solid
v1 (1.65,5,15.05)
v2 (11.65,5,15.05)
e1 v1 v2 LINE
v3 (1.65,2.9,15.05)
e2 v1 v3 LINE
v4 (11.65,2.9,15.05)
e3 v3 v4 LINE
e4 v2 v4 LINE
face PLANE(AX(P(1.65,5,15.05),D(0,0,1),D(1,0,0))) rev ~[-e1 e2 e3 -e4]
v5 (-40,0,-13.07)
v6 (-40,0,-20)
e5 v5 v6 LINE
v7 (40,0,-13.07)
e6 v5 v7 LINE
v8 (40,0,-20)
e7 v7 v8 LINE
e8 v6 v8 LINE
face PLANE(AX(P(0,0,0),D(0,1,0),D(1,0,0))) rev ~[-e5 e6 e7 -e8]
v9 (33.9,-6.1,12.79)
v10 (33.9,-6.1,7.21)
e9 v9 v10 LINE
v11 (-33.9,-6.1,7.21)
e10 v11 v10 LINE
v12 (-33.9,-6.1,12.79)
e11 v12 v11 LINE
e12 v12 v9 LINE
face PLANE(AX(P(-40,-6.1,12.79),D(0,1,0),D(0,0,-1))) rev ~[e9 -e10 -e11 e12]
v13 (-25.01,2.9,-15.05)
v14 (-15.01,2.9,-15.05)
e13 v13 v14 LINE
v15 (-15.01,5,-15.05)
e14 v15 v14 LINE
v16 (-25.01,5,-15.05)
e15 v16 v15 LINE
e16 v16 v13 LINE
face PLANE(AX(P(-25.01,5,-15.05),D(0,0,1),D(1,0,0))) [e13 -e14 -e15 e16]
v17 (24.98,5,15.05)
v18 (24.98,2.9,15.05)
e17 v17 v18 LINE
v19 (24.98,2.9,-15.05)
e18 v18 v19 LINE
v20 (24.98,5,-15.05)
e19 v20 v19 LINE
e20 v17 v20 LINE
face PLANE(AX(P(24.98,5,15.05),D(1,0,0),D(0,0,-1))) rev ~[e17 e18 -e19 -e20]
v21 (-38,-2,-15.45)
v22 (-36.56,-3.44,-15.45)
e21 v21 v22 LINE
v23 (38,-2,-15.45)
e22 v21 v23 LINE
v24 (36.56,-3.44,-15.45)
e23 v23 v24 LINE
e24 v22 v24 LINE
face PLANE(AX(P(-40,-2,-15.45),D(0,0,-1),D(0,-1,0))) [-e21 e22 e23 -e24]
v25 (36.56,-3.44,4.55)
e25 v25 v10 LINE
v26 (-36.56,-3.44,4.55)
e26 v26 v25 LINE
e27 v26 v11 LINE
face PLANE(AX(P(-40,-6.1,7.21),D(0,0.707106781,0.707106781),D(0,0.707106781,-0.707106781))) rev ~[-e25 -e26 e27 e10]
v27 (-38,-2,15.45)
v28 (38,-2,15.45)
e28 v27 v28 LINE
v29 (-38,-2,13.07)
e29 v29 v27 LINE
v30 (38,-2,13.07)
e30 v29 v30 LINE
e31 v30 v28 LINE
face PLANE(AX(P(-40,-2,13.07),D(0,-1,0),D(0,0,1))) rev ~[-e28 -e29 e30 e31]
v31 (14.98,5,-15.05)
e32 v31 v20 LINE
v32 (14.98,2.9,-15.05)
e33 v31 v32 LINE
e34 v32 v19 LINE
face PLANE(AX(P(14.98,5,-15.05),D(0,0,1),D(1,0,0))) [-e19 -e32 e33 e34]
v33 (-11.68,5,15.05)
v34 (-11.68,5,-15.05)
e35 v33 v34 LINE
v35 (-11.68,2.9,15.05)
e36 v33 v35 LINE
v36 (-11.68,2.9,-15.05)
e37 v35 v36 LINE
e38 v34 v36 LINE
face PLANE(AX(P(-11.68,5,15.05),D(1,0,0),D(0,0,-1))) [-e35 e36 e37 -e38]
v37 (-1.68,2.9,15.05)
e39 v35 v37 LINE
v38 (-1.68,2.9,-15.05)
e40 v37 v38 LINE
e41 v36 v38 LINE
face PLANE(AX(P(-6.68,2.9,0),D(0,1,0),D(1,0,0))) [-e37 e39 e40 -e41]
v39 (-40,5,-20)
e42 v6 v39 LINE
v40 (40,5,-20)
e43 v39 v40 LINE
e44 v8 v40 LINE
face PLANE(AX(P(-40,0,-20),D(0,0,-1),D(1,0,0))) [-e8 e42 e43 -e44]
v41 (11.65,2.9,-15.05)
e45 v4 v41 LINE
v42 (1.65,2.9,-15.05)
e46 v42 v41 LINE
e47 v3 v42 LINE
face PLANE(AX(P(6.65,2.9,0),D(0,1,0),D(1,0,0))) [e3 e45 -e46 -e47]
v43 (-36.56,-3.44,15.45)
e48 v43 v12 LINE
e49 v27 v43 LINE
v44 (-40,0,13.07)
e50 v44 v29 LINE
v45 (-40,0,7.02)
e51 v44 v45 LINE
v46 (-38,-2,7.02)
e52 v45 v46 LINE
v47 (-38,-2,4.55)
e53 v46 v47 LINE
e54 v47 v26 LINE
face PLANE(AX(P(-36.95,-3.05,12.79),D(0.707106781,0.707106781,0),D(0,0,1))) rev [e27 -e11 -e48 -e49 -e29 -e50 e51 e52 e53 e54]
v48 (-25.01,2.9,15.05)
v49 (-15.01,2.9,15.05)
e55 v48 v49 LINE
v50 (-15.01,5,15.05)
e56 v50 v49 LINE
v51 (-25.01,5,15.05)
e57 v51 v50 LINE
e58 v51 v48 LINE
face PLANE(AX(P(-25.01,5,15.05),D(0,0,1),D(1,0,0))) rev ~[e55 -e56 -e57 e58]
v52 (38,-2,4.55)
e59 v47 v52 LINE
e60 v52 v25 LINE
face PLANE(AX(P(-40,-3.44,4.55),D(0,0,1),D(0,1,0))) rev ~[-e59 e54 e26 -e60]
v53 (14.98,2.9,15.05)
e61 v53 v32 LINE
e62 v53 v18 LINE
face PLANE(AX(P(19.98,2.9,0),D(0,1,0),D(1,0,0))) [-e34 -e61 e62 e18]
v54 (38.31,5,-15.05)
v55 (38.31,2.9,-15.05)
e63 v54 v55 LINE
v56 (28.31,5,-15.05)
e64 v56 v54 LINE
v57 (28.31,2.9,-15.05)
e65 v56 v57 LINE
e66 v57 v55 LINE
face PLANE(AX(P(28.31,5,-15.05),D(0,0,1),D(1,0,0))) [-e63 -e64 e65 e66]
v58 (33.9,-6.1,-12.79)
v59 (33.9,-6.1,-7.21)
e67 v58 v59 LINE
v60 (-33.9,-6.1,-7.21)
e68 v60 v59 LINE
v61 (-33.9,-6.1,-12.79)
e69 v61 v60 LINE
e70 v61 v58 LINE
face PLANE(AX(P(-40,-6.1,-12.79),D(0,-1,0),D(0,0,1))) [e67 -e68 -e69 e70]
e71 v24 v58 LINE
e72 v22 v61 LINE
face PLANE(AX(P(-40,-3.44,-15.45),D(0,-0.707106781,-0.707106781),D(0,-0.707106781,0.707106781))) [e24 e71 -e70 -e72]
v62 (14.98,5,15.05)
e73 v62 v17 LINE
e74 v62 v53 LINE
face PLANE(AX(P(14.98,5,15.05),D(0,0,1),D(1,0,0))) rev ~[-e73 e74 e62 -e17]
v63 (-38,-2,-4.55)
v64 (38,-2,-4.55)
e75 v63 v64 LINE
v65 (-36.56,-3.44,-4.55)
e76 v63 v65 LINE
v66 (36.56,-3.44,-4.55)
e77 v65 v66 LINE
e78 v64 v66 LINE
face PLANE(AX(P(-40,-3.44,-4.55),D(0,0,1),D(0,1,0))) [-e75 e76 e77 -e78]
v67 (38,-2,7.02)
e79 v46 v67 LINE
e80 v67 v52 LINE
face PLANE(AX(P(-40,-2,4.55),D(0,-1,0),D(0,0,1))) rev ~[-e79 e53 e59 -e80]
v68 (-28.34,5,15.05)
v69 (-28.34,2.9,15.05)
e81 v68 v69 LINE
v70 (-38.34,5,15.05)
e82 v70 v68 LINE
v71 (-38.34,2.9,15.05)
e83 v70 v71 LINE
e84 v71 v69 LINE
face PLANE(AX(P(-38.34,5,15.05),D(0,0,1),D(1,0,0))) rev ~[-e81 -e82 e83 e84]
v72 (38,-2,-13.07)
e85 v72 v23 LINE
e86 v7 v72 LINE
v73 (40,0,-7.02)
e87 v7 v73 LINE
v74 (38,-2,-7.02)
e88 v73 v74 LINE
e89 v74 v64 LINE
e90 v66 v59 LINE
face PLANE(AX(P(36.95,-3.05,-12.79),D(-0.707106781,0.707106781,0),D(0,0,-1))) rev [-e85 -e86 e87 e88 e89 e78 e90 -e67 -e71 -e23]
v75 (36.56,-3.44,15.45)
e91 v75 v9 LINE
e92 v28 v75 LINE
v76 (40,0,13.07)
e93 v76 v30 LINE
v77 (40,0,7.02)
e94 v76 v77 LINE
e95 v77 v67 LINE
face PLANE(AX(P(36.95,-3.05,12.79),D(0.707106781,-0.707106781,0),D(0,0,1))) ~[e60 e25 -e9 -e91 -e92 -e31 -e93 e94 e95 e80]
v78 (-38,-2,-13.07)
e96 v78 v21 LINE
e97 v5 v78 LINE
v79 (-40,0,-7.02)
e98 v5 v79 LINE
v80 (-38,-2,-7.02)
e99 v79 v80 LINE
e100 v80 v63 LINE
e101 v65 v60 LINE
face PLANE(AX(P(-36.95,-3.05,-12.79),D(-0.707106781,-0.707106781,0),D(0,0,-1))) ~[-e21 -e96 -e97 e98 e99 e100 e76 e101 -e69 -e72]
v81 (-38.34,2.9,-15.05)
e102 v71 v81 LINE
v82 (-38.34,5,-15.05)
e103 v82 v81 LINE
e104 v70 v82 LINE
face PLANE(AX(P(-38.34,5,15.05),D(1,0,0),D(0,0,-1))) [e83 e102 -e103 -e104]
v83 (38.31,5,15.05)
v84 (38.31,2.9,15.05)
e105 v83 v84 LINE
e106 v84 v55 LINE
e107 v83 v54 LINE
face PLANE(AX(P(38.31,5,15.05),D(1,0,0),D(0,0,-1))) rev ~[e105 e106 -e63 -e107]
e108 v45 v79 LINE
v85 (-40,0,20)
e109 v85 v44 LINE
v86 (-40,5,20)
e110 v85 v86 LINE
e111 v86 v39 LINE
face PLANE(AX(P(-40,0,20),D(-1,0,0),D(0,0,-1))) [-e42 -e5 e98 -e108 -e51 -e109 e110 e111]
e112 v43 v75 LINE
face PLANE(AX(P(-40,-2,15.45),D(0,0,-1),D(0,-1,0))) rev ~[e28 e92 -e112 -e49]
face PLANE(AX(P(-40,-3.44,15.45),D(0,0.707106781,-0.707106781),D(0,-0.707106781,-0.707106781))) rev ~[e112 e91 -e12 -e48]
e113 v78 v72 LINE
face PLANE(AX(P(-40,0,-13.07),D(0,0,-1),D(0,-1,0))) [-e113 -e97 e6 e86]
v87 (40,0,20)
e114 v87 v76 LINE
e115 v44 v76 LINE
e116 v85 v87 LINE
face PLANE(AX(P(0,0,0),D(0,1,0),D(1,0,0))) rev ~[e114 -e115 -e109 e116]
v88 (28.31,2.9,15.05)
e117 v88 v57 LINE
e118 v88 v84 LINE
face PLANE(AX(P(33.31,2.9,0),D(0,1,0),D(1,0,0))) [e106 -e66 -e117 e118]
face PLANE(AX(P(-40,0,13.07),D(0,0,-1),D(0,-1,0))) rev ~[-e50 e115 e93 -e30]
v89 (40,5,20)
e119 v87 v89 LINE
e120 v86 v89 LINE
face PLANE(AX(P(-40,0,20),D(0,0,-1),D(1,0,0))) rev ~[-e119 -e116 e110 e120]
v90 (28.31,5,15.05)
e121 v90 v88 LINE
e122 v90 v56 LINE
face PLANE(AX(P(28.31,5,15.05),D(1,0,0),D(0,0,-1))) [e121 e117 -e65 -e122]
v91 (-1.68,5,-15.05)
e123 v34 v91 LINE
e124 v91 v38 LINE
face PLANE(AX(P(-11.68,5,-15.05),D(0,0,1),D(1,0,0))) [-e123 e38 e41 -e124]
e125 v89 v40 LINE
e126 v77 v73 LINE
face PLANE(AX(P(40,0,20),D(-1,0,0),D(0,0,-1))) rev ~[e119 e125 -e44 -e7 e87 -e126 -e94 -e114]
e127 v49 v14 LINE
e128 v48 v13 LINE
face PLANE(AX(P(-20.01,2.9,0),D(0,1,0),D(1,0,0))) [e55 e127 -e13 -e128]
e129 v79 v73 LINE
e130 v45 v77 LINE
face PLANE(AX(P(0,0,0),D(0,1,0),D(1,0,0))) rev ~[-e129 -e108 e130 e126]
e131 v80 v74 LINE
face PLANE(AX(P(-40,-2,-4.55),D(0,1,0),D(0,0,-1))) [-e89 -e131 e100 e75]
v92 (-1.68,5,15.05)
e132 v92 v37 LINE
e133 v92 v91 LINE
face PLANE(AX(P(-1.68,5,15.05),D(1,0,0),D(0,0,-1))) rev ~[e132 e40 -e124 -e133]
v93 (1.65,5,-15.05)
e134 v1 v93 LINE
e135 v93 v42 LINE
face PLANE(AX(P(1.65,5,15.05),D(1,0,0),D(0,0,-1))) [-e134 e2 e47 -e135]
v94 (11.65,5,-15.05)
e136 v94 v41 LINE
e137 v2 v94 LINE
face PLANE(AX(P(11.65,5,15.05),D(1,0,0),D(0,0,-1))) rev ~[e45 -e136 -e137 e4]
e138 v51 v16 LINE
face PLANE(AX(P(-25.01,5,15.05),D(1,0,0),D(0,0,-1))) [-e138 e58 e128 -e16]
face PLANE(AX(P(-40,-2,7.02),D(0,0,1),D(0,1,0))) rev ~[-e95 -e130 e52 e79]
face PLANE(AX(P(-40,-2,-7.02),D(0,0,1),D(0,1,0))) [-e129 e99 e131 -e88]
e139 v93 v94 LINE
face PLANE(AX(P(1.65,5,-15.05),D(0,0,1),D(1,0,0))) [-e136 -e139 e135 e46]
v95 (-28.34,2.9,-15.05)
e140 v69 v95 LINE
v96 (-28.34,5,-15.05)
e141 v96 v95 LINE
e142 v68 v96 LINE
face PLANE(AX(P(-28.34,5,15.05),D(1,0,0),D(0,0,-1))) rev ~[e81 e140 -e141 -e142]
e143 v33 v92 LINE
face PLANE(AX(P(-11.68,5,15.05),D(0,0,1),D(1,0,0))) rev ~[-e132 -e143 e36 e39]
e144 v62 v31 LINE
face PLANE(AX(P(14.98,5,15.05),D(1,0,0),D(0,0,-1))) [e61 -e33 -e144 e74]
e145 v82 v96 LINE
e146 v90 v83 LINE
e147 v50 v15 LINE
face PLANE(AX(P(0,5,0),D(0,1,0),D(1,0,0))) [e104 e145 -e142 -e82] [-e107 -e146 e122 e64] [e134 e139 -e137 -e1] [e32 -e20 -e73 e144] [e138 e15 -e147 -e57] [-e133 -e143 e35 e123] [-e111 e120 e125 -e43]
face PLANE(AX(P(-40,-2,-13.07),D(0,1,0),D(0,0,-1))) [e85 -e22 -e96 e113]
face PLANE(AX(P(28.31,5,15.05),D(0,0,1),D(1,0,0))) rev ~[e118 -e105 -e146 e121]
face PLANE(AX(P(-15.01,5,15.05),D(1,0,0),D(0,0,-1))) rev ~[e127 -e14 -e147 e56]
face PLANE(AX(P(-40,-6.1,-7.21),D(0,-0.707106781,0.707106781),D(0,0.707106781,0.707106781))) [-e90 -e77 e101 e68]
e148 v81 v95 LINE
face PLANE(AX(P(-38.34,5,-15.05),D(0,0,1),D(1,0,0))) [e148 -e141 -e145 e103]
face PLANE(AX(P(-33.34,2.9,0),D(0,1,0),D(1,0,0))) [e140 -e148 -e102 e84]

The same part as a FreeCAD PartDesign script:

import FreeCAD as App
import Part
import Sketcher

V = App.Vector
Q = App.Units.Quantity


def edges_at(feature, points):
    """Names of the edges that pass closest to the given points."""
    edges = feature.Shape.Edges
    near = lambda p: min(range(len(edges)), key=lambda i: edges[i].distToShape(Part.Vertex(*p))[0])
    return sorted({f"Edge{near(p) + 1}" for p in points})

doc = App.newDocument("Part")
body = doc.addObject("PartDesign::Body", "Body")

# Sketch on XZ plane
sketch1 = doc.addObject("Sketcher::SketchObject", "Sketch")
body.addObject(sketch1)
sketch1.AttachmentSupport = (doc.XZ_Plane, [""])
sketch1.MapMode = "FlatFace"
sketch1.addGeometry(Part.LineSegment(V(-40, -20, 0), V(-40, 20, 0)), False)
sketch1.addGeometry(Part.LineSegment(V(-40, 20, 0), V(40, 20, 0)), False)
sketch1.addGeometry(Part.LineSegment(V(40, 20, 0), V(40, -20, 0)), False)
sketch1.addGeometry(Part.LineSegment(V(40, -20, 0), V(-40, -20, 0)), False)
sketch1.addConstraint(Sketcher.Constraint("Coincident", 0, 2, 1, 1))
sketch1.addConstraint(Sketcher.Constraint("Coincident", 1, 2, 2, 1))
sketch1.addConstraint(Sketcher.Constraint("Coincident", 2, 2, 3, 1))
sketch1.addConstraint(Sketcher.Constraint("Coincident", 3, 2, 0, 1))
sketch1.addConstraint(Sketcher.Constraint("Vertical", 0))
sketch1.addConstraint(Sketcher.Constraint("Horizontal", 1))
sketch1.addConstraint(Sketcher.Constraint("Vertical", 2))
sketch1.addConstraint(Sketcher.Constraint("Horizontal", 3))
sketch1.addConstraint(Sketcher.Constraint("Symmetric", 0, 2, 2, 2, -1, 1))
sketch1.addConstraint(Sketcher.Constraint("DistanceX", 1, 1, 1, 2, Q("80 mm")))
sketch1.addConstraint(Sketcher.Constraint("DistanceY", 0, 1, 0, 2, Q("40 mm")))
pad1 = doc.addObject("PartDesign::Pad", "Pad")
body.addObject(pad1)
pad1.Profile = sketch1
pad1.Length = 5
pad1.Reversed = True

# Sketch on XZ plane
sketch2 = doc.addObject("Sketcher::SketchObject", "Sketch001")
body.addObject(sketch2)
sketch2.AttachmentSupport = (doc.XZ_Plane, [""])
sketch2.MapMode = "FlatFace"
sketch2.AttachmentOffset = App.Placement(V(0, 0, -5), App.Rotation())
sketch2.addGeometry(Part.LineSegment(V(-38, -15, 0), V(-38, 15, 0)), False)
sketch2.addGeometry(Part.LineSegment(V(-38, 15, 0), V(-28, 15, 0)), False)
sketch2.addGeometry(Part.LineSegment(V(-28, 15, 0), V(-28, -15, 0)), False)
sketch2.addGeometry(Part.LineSegment(V(-28, -15, 0), V(-38, -15, 0)), False)
sketch2.addConstraint(Sketcher.Constraint("Coincident", 0, 2, 1, 1))
sketch2.addConstraint(Sketcher.Constraint("Coincident", 1, 2, 2, 1))
sketch2.addConstraint(Sketcher.Constraint("Coincident", 2, 2, 3, 1))
sketch2.addConstraint(Sketcher.Constraint("Coincident", 3, 2, 0, 1))
sketch2.addConstraint(Sketcher.Constraint("Vertical", 0))
sketch2.addConstraint(Sketcher.Constraint("Horizontal", 1))
sketch2.addConstraint(Sketcher.Constraint("Vertical", 2))
sketch2.addConstraint(Sketcher.Constraint("Horizontal", 3))
sketch2.addConstraint(Sketcher.Constraint("DistanceX", 1, 1, 1, 2, Q("10 mm")))
sketch2.addConstraint(Sketcher.Constraint("DistanceY", 0, 1, 0, 2, Q("30.1 mm")))
sketch2.addConstraint(Sketcher.Constraint("DistanceX", 0, 2, -1, 1, Q("38.34 mm")))
sketch2.addConstraint(Sketcher.Constraint("DistanceY", -1, 1, 0, 2, Q("15.05 mm")))
pocket1 = doc.addObject("PartDesign::Pocket", "Pocket")
body.addObject(pocket1)
pocket1.Profile = sketch2
pocket1.Length = 2.1
pocket1.Reversed = True
doc.recompute()

linearpattern = doc.addObject("PartDesign::LinearPattern", "LinearPattern")
body.addObject(linearpattern)
linearpattern.Originals = [pocket1]
linearpattern.Direction = (doc.X_Axis, [""])
linearpattern.Mode = "offset"
linearpattern.Offset = 13.33
linearpattern.Occurrences = 6
body.Tip = linearpattern

# Sketch on YZ plane
sketch3 = doc.addObject("Sketcher::SketchObject", "Sketch002")
body.addObject(sketch3)
sketch3.AttachmentSupport = (doc.YZ_Plane, [""])
sketch3.MapMode = "FlatFace"
sketch3.AttachmentOffset = App.Placement(V(0, 0, -40), App.Rotation())
sketch3.addGeometry(Part.LineSegment(V(0, -13.1, 0), V(-2, -13.1, 0)), False)
sketch3.addGeometry(Part.LineSegment(V(-2, -13.1, 0), V(-2, -15.4, 0)), False)
sketch3.addGeometry(Part.LineSegment(V(-2, -15.4, 0), V(-3.4, -15.4, 0)), False)
sketch3.addGeometry(Part.LineSegment(V(-3.4, -15.4, 0), V(-6.1, -12.8, 0)), False)
sketch3.addGeometry(Part.LineSegment(V(-6.1, -12.8, 0), V(-6.1, -7.2, 0)), False)
sketch3.addGeometry(Part.LineSegment(V(-6.1, -7.2, 0), V(-3.4, -4.5, 0)), False)
sketch3.addGeometry(Part.LineSegment(V(-3.4, -4.5, 0), V(-2, -4.5, 0)), False)
sketch3.addGeometry(Part.LineSegment(V(-2, -4.5, 0), V(-2, -7, 0)), False)
sketch3.addGeometry(Part.LineSegment(V(-2, -7, 0), V(0, -7, 0)), False)
sketch3.addGeometry(Part.LineSegment(V(0, -7, 0), V(0, -13.1, 0)), False)
sketch3.addGeometry(Part.LineSegment(V(0, 13.1, 0), V(0, 7, 0)), False)
sketch3.addGeometry(Part.LineSegment(V(0, 7, 0), V(-2, 7, 0)), False)
sketch3.addGeometry(Part.LineSegment(V(-2, 7, 0), V(-2, 4.5, 0)), False)
sketch3.addGeometry(Part.LineSegment(V(-2, 4.5, 0), V(-3.4, 4.5, 0)), False)
sketch3.addGeometry(Part.LineSegment(V(-3.4, 4.5, 0), V(-6.1, 7.2, 0)), False)
sketch3.addGeometry(Part.LineSegment(V(-6.1, 7.2, 0), V(-6.1, 12.8, 0)), False)
sketch3.addGeometry(Part.LineSegment(V(-6.1, 12.8, 0), V(-3.4, 15.4, 0)), False)
sketch3.addGeometry(Part.LineSegment(V(-3.4, 15.4, 0), V(-2, 15.4, 0)), False)
sketch3.addGeometry(Part.LineSegment(V(-2, 15.4, 0), V(-2, 13.1, 0)), False)
sketch3.addGeometry(Part.LineSegment(V(-2, 13.1, 0), V(0, 13.1, 0)), False)
sketch3.addConstraint(Sketcher.Constraint("Coincident", 0, 2, 1, 1))
sketch3.addConstraint(Sketcher.Constraint("Coincident", 1, 2, 2, 1))
sketch3.addConstraint(Sketcher.Constraint("Coincident", 2, 2, 3, 1))
sketch3.addConstraint(Sketcher.Constraint("Coincident", 3, 2, 4, 1))
sketch3.addConstraint(Sketcher.Constraint("Coincident", 4, 2, 5, 1))
sketch3.addConstraint(Sketcher.Constraint("Coincident", 5, 2, 6, 1))
sketch3.addConstraint(Sketcher.Constraint("Coincident", 6, 2, 7, 1))
sketch3.addConstraint(Sketcher.Constraint("Coincident", 7, 2, 8, 1))
sketch3.addConstraint(Sketcher.Constraint("Coincident", 8, 2, 9, 1))
sketch3.addConstraint(Sketcher.Constraint("Coincident", 9, 2, 0, 1))
sketch3.addConstraint(Sketcher.Constraint("Coincident", 10, 2, 11, 1))
sketch3.addConstraint(Sketcher.Constraint("Coincident", 11, 2, 12, 1))
sketch3.addConstraint(Sketcher.Constraint("Coincident", 12, 2, 13, 1))
sketch3.addConstraint(Sketcher.Constraint("Coincident", 13, 2, 14, 1))
sketch3.addConstraint(Sketcher.Constraint("Coincident", 14, 2, 15, 1))
sketch3.addConstraint(Sketcher.Constraint("Coincident", 15, 2, 16, 1))
sketch3.addConstraint(Sketcher.Constraint("Coincident", 16, 2, 17, 1))
sketch3.addConstraint(Sketcher.Constraint("Coincident", 17, 2, 18, 1))
sketch3.addConstraint(Sketcher.Constraint("Coincident", 18, 2, 19, 1))
sketch3.addConstraint(Sketcher.Constraint("Coincident", 19, 2, 10, 1))
sketch3.addConstraint(Sketcher.Constraint("Horizontal", 0))
sketch3.addConstraint(Sketcher.Constraint("Vertical", 1))
sketch3.addConstraint(Sketcher.Constraint("Horizontal", 2))
sketch3.addConstraint(Sketcher.Constraint("Vertical", 4))
sketch3.addConstraint(Sketcher.Constraint("Horizontal", 6))
sketch3.addConstraint(Sketcher.Constraint("Vertical", 7))
sketch3.addConstraint(Sketcher.Constraint("Horizontal", 8))
sketch3.addConstraint(Sketcher.Constraint("Vertical", 9))
sketch3.addConstraint(Sketcher.Constraint("Vertical", 10))
sketch3.addConstraint(Sketcher.Constraint("Horizontal", 11))
sketch3.addConstraint(Sketcher.Constraint("Vertical", 12))
sketch3.addConstraint(Sketcher.Constraint("Horizontal", 13))
sketch3.addConstraint(Sketcher.Constraint("Vertical", 15))
sketch3.addConstraint(Sketcher.Constraint("Horizontal", 17))
sketch3.addConstraint(Sketcher.Constraint("Vertical", 18))
sketch3.addConstraint(Sketcher.Constraint("Horizontal", 19))
sketch3.addConstraint(Sketcher.Constraint("Symmetric", 8, 2, 10, 2, -1, 1))
sketch3.addConstraint(Sketcher.Constraint("Symmetric", 6, 2, 12, 2, -1))
sketch3.addConstraint(Sketcher.Constraint("Symmetric", 4, 2, 14, 2, -1))
sketch3.addConstraint(Sketcher.Constraint("Symmetric", 2, 2, 16, 2, -1))
sketch3.addConstraint(Sketcher.Constraint("Symmetric", 0, 2, 18, 2, -1))
sketch3.addConstraint(Sketcher.Constraint("PointOnObject", 8, 2, -2))
sketch3.addConstraint(Sketcher.Constraint("Perpendicular", 3, 5))
sketch3.addConstraint(Sketcher.Constraint("Perpendicular", 5, 14))
sketch3.addConstraint(Sketcher.Constraint("Perpendicular", 14, 16))
sketch3.addConstraint(Sketcher.Constraint("Vertical", 2, 2, 5, 2))
sketch3.addConstraint(Sketcher.Constraint("Vertical", 1, 2, 6, 2))
sketch3.addConstraint(Sketcher.Constraint("Vertical", 5, 2, 13, 2))
sketch3.addConstraint(Sketcher.Constraint("DistanceX", 0, 2, 0, 1, Q("2 mm")))
sketch3.addConstraint(Sketcher.Constraint("DistanceX", 2, 2, 2, 1, Q("1.44 mm")))
sketch3.addConstraint(Sketcher.Constraint("DistanceY", 1, 2, 1, 1, Q("2.38 mm")))
sketch3.addConstraint(Sketcher.Constraint("DistanceY", 4, 1, 4, 2, Q("5.58 mm")))
sketch3.addConstraint(Sketcher.Constraint("DistanceY", 7, 2, 7, 1, Q("2.47 mm")))
sketch3.addConstraint(Sketcher.Constraint("DistanceY", 9, 2, 9, 1, Q("6.05 mm")))
sketch3.addConstraint(Sketcher.Constraint("DistanceY", 6, 2, 12, 2, Q("9.1 mm")))
pad2 = doc.addObject("PartDesign::Pad", "Pad001")
body.addObject(pad2)
pad2.Profile = sketch3
pad2.Length = 80
doc.recompute()

chamfer = doc.addObject("PartDesign::Chamfer", "Chamfer")
body.addObject(chamfer)
chamfer.Base = (pad2, edges_at(pad2, [
    (40, -6.1, 10),
    (-40, -6.1, 10),
    (40, -6.1, -10),
    (-40, -6.1, -10),
]))
chamfer.Size = 6.1

doc.recompute()
